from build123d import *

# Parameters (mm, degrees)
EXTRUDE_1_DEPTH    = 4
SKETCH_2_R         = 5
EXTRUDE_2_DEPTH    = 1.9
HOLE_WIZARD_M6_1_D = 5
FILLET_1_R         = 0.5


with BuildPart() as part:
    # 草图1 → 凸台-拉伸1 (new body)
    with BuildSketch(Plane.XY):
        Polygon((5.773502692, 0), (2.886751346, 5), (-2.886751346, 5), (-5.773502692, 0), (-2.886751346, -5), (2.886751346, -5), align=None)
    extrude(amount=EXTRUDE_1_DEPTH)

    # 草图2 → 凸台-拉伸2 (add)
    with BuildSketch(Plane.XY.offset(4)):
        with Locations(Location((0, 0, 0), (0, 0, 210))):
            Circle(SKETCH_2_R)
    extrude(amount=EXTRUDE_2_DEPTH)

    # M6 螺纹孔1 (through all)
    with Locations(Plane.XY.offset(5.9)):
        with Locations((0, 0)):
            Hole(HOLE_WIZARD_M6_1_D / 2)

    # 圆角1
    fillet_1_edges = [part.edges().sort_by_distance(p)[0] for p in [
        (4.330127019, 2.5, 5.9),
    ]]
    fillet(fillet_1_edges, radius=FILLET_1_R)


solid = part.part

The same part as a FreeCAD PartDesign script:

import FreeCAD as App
import Part
import Sketcher
Q = App.Units.Quantity


def edges_at(feature, points):
    """Names of the edges that pass closest to the given points."""
    edges = feature.Shape.Edges
    near = lambda p: min(range(len(edges)), key=lambda i: edges[i].distToShape(Part.Vertex(*p))[0])
    return sorted({f"Edge{near(p) + 1}" for p in points})

doc = App.newDocument("Part")
body = doc.addObject("PartDesign::Body", "Body")

# Sketch on XY plane
sketch1 = body.newObject("Sketcher::SketchObject", "Sketch")
sketch1.AttachmentSupport = (doc.getObject("XY_Plane"), [""])
sketch1.MapMode = "FlatFace"
sketch1.addGeometry(Part.LineSegment(App.Vector(5.773503, 0, 0), App.Vector(2.886751, 5, 0)), False)
sketch1.addGeometry(Part.LineSegment(App.Vector(2.886751, 5, 0), App.Vector(-2.886751, 5, 0)), False)
sketch1.addGeometry(Part.LineSegment(App.Vector(-2.886751, 5, 0), App.Vector(-5.773503, 0, 0)), False)
sketch1.addGeometry(Part.LineSegment(App.Vector(-5.773503, 0, 0), App.Vector(-2.886751, -5, 0)), False)
sketch1.addGeometry(Part.LineSegment(App.Vector(-2.886751, -5, 0), App.Vector(2.886751, -5, 0)), False)
sketch1.addGeometry(Part.LineSegment(App.Vector(2.886751, -5, 0), App.Vector(5.773503, 0, 0)), False)
sketch1.addConstraint(Sketcher.Constraint("Coincident", 0, 2, 1, 1))
sketch1.addConstraint(Sketcher.Constraint("Coincident", 1, 2, 2, 1))
sketch1.addConstraint(Sketcher.Constraint("Coincident", 2, 2, 3, 1))
sketch1.addConstraint(Sketcher.Constraint("Coincident", 3, 2, 4, 1))
sketch1.addConstraint(Sketcher.Constraint("Coincident", 4, 2, 5, 1))
sketch1.addConstraint(Sketcher.Constraint("Coincident", 5, 2, 0, 1))
sketch1.addConstraint(Sketcher.Constraint("Horizontal", 1))
sketch1.addConstraint(Sketcher.Constraint("Horizontal", 4))
sketch1.addConstraint(Sketcher.Constraint("Symmetric", 0, 2, 3, 2, -1, 1))
sketch1.addConstraint(Sketcher.Constraint("Symmetric", 2, 2, 5, 2, -1, 1))
sketch1.addConstraint(Sketcher.Constraint("PointOnObject", 2, 2, -1))
sketch1.addConstraint(Sketcher.Constraint("Parallel", 2, 5))
sketch1.addConstraint(Sketcher.Constraint("Vertical", 1, 2, 3, 2))
sketch1.addConstraint(Sketcher.Constraint("Angle", 0, Q("120 deg")))
sketch1.addConstraint(Sketcher.Constraint("DistanceY", -1, 1, 0, 2, 5.0))
sketch1.addConstraint(Sketcher.Constraint("DistanceX", 1, 2, 1, 1, 5.773503))
pad1 = body.newObject("PartDesign::Pad", "Pad")
pad1.Profile = sketch1
pad1.Length = 4

# Sketch on XY plane
sketch2 = body.newObject("Sketcher::SketchObject", "Sketch001")
sketch2.AttachmentSupport = (doc.getObject("XY_Plane"), [""])
sketch2.MapMode = "FlatFace"
sketch2.AttachmentOffset = App.Placement(App.Vector(0, 0, 4), App.Rotation())
sketch2.addGeometry(Part.Circle(App.Vector(0, 0, 0), App.Vector(0, 0, 1), 5), False)
sketch2.addConstraint(Sketcher.Constraint("Coincident", 0, 3, -1, 1))
sketch2.addConstraint(Sketcher.Constraint("Diameter", 0, 10.0))
pad2 = body.newObject("PartDesign::Pad", "Pad001")
pad2.Profile = sketch2
pad2.Length = 1.9

# Sketch on XY plane
sketch3 = body.newObject("Sketcher::SketchObject", "Sketch002")
sketch3.AttachmentSupport = (doc.getObject("XY_Plane"), [""])
sketch3.MapMode = "FlatFace"
sketch3.AttachmentOffset = App.Placement(App.Vector(0, 0, 5.9), App.Rotation())
sketch3.addGeometry(Part.Circle(App.Vector(0, 0, 0), App.Vector(0, 0, 1), 2.5), False)
sketch3.addConstraint(Sketcher.Constraint("Coincident", 0, 3, -1, 1))
sketch3.addConstraint(Sketcher.Constraint("Diameter", 0, 5.0))
doc.recompute()
hole = body.newObject("PartDesign::Hole", "Hole")
hole.Profile = sketch3
hole.ThreadType = "None"
hole.Diameter = 5
hole.DepthType = "ThroughAll"
doc.recompute()

fillet = body.newObject("PartDesign::Fillet", "Fillet")
fillet.Base = (hole, edges_at(hole, [(4.33, 2.5, 5.9)]))
fillet.Radius = 0.5

doc.recompute()
